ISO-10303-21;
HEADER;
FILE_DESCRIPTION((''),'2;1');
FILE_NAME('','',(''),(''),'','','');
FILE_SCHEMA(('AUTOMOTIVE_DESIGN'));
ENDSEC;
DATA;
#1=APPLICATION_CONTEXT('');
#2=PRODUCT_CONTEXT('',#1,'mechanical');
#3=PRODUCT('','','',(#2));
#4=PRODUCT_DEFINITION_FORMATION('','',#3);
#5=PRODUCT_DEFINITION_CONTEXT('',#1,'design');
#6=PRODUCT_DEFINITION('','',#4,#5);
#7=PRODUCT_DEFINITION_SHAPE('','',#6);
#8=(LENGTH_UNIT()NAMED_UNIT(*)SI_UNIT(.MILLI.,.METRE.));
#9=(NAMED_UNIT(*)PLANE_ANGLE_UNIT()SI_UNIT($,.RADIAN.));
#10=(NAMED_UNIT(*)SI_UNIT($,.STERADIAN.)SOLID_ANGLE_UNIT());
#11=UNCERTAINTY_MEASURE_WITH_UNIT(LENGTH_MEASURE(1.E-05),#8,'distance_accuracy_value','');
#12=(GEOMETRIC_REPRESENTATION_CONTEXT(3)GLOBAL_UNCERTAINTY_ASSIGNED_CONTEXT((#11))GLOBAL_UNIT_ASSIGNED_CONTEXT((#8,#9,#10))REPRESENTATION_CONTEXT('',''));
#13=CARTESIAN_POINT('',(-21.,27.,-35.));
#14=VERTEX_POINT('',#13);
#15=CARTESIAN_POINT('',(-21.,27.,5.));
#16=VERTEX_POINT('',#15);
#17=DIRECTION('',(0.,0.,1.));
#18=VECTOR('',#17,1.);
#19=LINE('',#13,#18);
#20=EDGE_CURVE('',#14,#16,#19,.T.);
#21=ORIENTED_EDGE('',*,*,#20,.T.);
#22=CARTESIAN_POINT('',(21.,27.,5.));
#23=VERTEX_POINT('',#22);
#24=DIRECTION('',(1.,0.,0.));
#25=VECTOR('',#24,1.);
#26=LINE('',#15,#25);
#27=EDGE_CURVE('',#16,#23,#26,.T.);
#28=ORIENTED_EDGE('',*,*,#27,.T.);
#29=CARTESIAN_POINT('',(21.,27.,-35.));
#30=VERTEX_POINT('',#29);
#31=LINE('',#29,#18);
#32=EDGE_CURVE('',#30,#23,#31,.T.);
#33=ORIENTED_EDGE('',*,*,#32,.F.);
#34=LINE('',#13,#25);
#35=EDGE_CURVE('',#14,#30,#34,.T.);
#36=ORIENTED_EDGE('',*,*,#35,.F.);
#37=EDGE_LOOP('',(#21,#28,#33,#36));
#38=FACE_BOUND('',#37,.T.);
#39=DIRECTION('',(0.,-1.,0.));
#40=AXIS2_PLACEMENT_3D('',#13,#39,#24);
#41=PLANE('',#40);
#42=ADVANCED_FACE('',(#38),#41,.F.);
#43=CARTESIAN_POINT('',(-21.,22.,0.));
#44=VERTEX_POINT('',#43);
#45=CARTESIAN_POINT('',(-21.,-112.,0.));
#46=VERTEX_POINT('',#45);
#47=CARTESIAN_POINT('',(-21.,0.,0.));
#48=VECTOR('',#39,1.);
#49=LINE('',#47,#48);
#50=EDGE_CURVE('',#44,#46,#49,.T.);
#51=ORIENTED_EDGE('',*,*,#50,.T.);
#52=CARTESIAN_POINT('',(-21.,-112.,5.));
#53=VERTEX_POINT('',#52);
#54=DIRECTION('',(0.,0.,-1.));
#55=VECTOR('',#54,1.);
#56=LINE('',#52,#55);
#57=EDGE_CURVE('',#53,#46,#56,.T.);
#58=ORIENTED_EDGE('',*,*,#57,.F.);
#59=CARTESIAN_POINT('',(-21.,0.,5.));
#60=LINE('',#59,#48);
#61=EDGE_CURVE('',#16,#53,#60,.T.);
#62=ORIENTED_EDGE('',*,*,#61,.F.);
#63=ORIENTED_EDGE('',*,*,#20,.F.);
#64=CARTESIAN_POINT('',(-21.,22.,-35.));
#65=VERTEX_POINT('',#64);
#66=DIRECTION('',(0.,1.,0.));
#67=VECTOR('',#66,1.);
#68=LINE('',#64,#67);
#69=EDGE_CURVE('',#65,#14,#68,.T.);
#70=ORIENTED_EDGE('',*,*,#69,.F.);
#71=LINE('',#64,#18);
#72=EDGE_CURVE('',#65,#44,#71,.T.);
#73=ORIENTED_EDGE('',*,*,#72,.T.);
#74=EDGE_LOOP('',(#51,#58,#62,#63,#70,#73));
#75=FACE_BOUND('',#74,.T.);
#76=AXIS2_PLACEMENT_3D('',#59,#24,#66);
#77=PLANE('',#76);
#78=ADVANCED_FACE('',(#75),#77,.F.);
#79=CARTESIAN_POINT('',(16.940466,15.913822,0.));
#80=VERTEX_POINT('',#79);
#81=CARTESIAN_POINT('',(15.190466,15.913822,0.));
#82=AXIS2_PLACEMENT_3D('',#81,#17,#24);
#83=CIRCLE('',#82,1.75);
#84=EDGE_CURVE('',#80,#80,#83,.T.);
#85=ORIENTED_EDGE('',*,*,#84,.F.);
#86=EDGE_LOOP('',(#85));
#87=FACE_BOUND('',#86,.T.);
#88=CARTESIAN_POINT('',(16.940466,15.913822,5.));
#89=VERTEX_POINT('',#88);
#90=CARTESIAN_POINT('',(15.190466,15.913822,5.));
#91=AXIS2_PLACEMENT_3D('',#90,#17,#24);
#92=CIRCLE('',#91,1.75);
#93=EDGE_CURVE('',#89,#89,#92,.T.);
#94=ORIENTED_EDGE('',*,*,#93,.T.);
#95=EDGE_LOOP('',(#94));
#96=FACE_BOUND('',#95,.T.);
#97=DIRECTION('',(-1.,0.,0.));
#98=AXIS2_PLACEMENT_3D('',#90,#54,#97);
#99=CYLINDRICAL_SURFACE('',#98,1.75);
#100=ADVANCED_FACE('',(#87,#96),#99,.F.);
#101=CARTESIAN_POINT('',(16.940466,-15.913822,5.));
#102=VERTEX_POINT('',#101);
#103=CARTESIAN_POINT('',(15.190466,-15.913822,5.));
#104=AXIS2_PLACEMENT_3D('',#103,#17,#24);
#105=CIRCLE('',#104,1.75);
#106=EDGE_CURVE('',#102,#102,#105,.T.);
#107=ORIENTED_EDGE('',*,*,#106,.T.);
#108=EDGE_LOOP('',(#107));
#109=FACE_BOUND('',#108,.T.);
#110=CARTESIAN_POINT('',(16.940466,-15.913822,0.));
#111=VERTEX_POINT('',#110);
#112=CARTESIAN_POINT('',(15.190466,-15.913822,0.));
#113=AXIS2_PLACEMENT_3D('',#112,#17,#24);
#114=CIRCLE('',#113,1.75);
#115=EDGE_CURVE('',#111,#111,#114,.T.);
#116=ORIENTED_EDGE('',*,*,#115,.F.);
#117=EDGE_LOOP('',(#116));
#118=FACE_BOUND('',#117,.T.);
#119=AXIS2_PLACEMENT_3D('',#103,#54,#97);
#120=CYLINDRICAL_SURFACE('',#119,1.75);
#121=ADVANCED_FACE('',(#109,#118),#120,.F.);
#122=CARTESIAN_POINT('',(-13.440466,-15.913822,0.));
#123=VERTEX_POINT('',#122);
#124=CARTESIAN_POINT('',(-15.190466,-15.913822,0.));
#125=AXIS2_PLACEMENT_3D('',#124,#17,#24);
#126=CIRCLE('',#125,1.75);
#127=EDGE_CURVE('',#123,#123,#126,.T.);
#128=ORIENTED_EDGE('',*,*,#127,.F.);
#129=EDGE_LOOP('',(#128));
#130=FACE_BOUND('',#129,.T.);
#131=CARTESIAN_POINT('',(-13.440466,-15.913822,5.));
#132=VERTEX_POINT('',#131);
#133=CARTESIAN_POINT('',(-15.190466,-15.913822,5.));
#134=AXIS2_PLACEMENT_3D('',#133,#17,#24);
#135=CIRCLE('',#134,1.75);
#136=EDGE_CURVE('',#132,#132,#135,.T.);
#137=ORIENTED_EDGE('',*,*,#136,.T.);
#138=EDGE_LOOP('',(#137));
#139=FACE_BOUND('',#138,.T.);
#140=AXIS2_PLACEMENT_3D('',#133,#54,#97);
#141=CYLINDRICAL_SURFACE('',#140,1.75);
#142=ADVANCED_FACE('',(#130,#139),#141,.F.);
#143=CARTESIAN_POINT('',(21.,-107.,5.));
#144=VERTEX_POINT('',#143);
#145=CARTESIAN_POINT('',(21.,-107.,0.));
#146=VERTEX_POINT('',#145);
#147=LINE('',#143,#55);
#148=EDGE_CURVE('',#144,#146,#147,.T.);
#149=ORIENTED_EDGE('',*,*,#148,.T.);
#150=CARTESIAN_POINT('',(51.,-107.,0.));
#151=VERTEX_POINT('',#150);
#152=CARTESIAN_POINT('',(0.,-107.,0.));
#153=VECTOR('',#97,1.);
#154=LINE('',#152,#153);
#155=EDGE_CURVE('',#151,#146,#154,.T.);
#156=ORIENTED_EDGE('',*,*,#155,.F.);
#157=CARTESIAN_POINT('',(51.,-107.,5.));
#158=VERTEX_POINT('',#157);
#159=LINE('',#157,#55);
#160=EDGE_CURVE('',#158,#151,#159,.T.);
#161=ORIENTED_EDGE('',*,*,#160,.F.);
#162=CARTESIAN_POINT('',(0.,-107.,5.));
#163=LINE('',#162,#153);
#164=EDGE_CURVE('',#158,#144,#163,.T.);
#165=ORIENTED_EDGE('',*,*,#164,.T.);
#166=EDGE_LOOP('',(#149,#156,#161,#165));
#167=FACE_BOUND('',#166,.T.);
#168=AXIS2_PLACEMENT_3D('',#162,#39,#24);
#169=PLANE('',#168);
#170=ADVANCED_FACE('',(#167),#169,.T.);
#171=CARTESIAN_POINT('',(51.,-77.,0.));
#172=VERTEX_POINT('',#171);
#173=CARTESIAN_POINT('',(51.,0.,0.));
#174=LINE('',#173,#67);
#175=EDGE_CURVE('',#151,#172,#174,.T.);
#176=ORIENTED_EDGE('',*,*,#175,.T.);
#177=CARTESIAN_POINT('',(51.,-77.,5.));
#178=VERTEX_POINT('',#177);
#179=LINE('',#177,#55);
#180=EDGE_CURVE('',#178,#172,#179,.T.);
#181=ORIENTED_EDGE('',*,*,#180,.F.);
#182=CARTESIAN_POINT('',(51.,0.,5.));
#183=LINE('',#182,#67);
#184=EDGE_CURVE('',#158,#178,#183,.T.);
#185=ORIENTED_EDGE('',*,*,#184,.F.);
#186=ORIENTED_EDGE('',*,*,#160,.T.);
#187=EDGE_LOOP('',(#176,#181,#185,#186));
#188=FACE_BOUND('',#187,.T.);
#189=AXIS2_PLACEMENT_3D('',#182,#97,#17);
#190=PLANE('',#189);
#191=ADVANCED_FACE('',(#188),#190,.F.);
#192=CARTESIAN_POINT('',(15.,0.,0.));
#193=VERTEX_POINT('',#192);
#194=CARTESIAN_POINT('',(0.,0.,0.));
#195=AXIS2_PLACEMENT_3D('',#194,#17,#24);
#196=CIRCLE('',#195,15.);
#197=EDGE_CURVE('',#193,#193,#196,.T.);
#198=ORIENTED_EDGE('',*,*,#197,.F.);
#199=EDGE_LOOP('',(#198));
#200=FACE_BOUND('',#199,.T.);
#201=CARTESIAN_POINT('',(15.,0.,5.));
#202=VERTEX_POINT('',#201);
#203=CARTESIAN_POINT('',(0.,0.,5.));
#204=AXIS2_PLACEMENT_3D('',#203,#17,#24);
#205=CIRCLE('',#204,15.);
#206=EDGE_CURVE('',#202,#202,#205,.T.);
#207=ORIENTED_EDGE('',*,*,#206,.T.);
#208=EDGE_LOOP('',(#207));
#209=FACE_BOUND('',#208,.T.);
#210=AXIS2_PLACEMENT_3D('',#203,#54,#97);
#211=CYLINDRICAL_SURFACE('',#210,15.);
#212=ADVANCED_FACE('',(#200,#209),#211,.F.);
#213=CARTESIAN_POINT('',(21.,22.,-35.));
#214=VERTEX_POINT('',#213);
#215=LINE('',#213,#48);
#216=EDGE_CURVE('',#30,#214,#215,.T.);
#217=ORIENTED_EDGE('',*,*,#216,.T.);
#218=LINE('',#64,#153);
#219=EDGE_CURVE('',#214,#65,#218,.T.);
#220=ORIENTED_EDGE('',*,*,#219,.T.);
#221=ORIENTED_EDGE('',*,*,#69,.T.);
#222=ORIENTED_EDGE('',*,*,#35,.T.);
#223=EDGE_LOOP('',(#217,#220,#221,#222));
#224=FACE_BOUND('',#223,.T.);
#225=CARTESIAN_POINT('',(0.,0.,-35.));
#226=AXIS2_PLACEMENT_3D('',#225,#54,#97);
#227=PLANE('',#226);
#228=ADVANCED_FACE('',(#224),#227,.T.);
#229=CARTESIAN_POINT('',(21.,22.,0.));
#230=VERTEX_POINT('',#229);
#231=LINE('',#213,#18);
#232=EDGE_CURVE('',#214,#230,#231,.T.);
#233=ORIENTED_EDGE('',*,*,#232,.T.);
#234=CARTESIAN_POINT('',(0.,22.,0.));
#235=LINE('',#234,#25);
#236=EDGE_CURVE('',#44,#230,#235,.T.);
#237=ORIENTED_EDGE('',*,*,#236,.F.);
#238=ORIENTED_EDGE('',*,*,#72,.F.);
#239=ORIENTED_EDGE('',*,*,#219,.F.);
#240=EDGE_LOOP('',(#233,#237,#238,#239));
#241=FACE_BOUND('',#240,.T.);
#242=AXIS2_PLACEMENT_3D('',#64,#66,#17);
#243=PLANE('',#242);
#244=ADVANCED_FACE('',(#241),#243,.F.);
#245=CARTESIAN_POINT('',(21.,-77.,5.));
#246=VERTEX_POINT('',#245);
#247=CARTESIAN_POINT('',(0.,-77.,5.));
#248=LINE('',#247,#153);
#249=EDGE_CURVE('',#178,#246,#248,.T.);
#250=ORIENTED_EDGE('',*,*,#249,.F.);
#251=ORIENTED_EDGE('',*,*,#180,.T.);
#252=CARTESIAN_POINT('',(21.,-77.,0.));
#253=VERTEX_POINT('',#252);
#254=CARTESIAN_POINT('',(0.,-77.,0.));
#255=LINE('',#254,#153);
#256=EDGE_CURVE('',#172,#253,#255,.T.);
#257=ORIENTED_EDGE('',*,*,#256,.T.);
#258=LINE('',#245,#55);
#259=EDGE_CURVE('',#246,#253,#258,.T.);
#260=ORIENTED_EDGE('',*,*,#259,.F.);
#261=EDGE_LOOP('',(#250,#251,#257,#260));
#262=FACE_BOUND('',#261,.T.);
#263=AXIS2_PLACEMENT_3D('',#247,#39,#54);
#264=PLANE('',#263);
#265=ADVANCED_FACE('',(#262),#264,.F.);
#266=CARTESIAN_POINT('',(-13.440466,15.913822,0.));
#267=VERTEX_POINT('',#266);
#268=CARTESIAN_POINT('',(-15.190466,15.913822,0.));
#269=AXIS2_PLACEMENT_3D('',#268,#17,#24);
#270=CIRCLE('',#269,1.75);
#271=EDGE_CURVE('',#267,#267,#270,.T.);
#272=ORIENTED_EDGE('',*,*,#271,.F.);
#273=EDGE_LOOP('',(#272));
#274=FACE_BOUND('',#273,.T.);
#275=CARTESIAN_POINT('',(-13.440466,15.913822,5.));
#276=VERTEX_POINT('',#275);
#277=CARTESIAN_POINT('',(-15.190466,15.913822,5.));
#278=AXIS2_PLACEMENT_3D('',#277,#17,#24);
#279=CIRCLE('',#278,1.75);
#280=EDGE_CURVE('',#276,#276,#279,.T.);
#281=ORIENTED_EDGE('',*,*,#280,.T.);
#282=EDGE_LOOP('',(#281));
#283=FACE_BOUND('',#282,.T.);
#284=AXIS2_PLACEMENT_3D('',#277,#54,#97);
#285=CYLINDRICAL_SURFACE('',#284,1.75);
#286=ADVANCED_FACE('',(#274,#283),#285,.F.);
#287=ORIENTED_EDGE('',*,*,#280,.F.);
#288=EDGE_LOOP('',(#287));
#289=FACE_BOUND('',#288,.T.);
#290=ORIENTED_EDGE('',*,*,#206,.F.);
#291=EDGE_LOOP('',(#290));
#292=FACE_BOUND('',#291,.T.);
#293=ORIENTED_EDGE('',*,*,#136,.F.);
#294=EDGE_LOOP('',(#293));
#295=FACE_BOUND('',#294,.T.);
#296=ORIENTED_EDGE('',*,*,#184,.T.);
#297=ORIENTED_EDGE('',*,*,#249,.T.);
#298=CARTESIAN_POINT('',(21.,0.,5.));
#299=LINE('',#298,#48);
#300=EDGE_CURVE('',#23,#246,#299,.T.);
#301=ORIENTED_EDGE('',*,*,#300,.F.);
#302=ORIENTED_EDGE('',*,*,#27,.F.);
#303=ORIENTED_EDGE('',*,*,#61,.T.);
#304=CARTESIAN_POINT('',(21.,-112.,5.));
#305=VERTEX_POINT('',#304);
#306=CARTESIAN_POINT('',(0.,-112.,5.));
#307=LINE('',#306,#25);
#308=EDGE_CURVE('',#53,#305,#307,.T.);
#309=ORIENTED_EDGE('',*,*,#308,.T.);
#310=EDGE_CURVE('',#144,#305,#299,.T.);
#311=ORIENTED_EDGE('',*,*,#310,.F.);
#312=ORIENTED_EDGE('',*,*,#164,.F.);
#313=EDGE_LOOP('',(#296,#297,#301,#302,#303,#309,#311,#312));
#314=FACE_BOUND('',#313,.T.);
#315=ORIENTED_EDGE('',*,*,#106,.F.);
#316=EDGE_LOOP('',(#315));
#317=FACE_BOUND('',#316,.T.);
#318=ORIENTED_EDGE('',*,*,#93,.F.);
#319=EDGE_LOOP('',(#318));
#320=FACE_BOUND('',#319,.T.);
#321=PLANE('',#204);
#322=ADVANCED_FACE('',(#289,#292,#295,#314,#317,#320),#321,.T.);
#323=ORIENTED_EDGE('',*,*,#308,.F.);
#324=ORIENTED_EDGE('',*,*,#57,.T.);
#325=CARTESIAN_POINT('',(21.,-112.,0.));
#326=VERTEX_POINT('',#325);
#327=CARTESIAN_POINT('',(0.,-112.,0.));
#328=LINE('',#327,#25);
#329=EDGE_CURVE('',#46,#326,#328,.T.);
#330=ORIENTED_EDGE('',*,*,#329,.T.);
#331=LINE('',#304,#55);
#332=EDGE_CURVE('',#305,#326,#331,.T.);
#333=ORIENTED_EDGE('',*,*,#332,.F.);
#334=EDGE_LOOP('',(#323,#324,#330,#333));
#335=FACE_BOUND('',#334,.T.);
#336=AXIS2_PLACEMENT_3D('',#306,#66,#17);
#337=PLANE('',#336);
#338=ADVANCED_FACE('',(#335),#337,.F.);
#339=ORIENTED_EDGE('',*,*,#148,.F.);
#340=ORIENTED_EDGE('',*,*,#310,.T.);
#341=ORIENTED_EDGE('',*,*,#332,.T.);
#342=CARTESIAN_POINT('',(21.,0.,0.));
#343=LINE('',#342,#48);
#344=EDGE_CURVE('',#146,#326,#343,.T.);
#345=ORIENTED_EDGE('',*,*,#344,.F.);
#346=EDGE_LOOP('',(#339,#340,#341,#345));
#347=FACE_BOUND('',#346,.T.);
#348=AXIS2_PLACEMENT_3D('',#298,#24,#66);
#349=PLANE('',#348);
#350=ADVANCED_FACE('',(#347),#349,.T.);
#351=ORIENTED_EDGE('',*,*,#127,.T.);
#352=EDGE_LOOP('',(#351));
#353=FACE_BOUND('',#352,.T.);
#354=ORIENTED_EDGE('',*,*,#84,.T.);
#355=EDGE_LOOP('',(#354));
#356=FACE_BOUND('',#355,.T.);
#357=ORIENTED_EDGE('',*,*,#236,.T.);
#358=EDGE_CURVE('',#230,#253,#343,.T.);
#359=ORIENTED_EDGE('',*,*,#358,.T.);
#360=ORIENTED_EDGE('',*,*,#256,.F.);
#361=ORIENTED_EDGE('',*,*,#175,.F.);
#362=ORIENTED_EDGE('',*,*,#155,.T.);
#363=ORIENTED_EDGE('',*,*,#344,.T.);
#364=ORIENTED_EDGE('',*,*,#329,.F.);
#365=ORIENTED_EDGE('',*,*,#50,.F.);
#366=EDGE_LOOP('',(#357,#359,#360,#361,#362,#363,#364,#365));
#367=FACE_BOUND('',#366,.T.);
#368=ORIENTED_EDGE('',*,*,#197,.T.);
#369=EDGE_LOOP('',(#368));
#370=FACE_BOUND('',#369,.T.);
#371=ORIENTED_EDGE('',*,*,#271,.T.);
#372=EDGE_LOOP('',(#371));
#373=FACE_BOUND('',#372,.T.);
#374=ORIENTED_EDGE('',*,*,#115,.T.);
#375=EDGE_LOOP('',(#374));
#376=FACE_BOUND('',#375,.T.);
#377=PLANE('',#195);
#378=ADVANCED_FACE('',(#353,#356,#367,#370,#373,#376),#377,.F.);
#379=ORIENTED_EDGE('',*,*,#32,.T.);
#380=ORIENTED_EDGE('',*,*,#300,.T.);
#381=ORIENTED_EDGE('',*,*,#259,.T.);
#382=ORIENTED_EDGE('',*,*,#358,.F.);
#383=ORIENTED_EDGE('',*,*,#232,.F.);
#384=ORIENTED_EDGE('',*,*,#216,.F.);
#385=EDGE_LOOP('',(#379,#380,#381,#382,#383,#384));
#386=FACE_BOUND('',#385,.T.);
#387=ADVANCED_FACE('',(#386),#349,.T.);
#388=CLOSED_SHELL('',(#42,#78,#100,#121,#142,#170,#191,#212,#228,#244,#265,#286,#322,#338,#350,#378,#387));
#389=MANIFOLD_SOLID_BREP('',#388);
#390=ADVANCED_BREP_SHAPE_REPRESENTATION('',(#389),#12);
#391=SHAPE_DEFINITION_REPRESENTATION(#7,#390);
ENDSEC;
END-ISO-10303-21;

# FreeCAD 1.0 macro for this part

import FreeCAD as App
import Part
import Sketcher
from FreeCAD import Vector
Q = App.Units.Quantity


def add_polygon(sketch, points):
    """Adds a closed chain of lines whose ends are joined by coincident constraints."""
    first, n = sketch.GeometryCount, len(points)
    for a, b in zip(points, points[1:] + points[:1]):
        sketch.addGeometry(Part.LineSegment(App.Vector(*a, 0), App.Vector(*b, 0)), False)
    for i in range(n):
        sketch.addConstraint(Sketcher.Constraint("Coincident", first + i, 2, first + (i + 1) % n, 1))

doc = App.newDocument("Part")
body = doc.addObject("PartDesign::Body", "Body")

sketch1 = doc.addObject("Sketcher::SketchObject", "Sketch")
body.addObject(sketch1)
sketch1.AttachmentSupport = (doc.XY_Plane, [""])
sketch1.MapMode = "FlatFace"
add_polygon(sketch1, [(21, -107), (51, -107), (51, -77), (21, -77), (21, 22), (-21, 22), (-21, -112), (21, -112)])
sketch1.addGeometry(Part.Circle(Vector(-15.2, -15.9, 0), Vector(0, 0, 1), 1.8), False)
sketch1.addGeometry(Part.Circle(Vector(15.2, -15.9, 0), Vector(0, 0, 1), 1.8), False)
sketch1.addGeometry(Part.Circle(Vector(-15.2, 15.9, 0), Vector(0, 0, 1), 1.8), False)
sketch1.addGeometry(Part.Circle(Vector(0, 0, 0), Vector(0, 0, 1), 15), False)
sketch1.addGeometry(Part.Circle(Vector(15.2, 15.9, 0), Vector(0, 0, 1), 1.8), False)
sketch1.addConstraint([
    Sketcher.Constraint("Horizontal", 0),
    Sketcher.Constraint("Vertical", 1),
    Sketcher.Constraint("Horizontal", 2),
    Sketcher.Constraint("Vertical", 3),
    Sketcher.Constraint("Horizontal", 4),
    Sketcher.Constraint("Vertical", 5),
    Sketcher.Constraint("Horizontal", 6),
    Sketcher.Constraint("Vertical", 7),
    Sketcher.Constraint("Coincident", 11, 3, -1, 1),
    Sketcher.Constraint("Equal", 8, 9),
    Sketcher.Constraint("Equal", 9, 10),
    Sketcher.Constraint("Equal", 10, 12),
    Sketcher.Constraint("Symmetric", 9, 3, 10, 3, -1, 1),
    Sketcher.Constraint("Symmetric", 8, 3, 12, 3, -1, 1),
    Sketcher.Constraint("Symmetric", 8, 3, 9, 3, -2),
    Sketcher.Constraint("Vertical", 3, 2, 6, 2),
    Sketcher.Constraint("Equal", 2, 1),
    Sketcher.Constraint("Diameter", 11, Q("30 mm")),
    Sketcher.Constraint("Diameter", 8, Q("3.5 mm")),
    Sketcher.Constraint("DistanceX", 0, 1, 0, 2, Q("30 mm")),
    Sketcher.Constraint("DistanceX", 4, 2, 4, 1, Q("42 mm")),
    Sketcher.Constraint("DistanceY", 3, 1, 3, 2, Q("99 mm")),
    Sketcher.Constraint("DistanceY", 5, 2, 5, 1, Q("134 mm")),
    Sketcher.Constraint("DistanceX", -1, 1, 0, 2, Q("51 mm")),
    Sketcher.Constraint("DistanceY", 0, 2, -1, 1, Q("107 mm")),
    Sketcher.Constraint("DistanceY", 8, 3, -1, 1, Q("15.913822 mm")),
    Sketcher.Constraint("DistanceX", 8, 3, -1, 1, Q("15.190466 mm")),
])
pad1 = doc.addObject("PartDesign::Pad", "Pad")
body.addObject(pad1)
pad1.Profile = sketch1
pad1.Length = 5

sketch2 = doc.addObject("Sketcher::SketchObject", "Sketch001")
body.addObject(sketch2)
sketch2.AttachmentSupport = (doc.XY_Plane, [""])
sketch2.MapMode = "FlatFace"
add_polygon(sketch2, [(21, 27), (21, 22), (-21, 22), (-21, 27)])
sketch2.addConstraint([
    Sketcher.Constraint("Vertical", 0),
    Sketcher.Constraint("Horizontal", 1),
    Sketcher.Constraint("Vertical", 2),
    Sketcher.Constraint("Horizontal", 3),
    Sketcher.Constraint("DistanceX", 1, 2, 1, 1, Q("42 mm")),
    Sketcher.Constraint("DistanceY", 0, 2, 0, 1, Q("5 mm")),
    Sketcher.Constraint("DistanceX", -1, 1, 0, 2, Q("21 mm")),
    Sketcher.Constraint("DistanceY", -1, 1, 0, 2, Q("22 mm")),
])
pad2 = doc.addObject("PartDesign::Pad", "Pad001")
body.addObject(pad2)
pad2.Profile = sketch2
pad2.Type = "TwoLengths"
pad2.Length = 35
pad2.Length2 = 5
pad2.Reversed = True

doc.recompute()
